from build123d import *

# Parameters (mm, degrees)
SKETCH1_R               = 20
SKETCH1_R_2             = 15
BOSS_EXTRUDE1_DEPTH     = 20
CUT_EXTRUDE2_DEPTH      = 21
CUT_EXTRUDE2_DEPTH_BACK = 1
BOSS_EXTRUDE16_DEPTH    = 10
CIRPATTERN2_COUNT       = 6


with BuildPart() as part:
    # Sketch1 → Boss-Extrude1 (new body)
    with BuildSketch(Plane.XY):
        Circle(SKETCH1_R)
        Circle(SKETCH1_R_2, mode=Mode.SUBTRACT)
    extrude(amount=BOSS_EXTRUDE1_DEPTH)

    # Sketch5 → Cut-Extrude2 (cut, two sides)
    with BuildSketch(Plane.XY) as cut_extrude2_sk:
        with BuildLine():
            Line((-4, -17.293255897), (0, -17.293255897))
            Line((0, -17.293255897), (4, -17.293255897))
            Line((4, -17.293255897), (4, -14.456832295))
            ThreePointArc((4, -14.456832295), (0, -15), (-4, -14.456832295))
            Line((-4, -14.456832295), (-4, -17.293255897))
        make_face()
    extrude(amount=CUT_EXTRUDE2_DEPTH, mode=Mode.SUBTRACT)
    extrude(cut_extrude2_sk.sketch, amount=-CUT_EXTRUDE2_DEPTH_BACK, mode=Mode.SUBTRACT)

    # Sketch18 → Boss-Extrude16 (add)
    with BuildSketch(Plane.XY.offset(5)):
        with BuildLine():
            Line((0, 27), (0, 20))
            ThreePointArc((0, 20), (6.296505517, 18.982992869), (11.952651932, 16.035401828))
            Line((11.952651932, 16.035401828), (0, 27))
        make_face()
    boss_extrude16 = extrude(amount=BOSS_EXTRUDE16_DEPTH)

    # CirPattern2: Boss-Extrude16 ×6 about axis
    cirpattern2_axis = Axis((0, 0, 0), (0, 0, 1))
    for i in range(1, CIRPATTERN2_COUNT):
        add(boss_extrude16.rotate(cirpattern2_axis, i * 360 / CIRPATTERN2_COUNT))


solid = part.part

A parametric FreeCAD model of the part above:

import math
import FreeCAD as App
import Part
import Sketcher

V = App.Vector

doc = App.newDocument("Part")
body = doc.addObject("PartDesign::Body", "Body")

sketch1 = doc.addObject("Sketcher::SketchObject", "Sketch")
body.addObject(sketch1)
sketch1.AttachmentSupport = (doc.XY_Plane, [""])
sketch1.MapMode = "FlatFace"
sketch1.addGeometry([
    Part.Circle(V(0, 0, 0), V(0, 0, 1), 20),
    Part.Circle(V(0, 0, 0), V(0, 0, 1), 15),
], False)
sketch1.addConstraint([
    Sketcher.Constraint("Coincident", 0, 3, -1, 1),
    Sketcher.Constraint("Coincident", 1, 3, -1, 1),
    Sketcher.Constraint("Diameter", 0, 40.0),
    Sketcher.Constraint("Diameter", 1, 30.0),
])
pad1 = doc.addObject("PartDesign::Pad", "Pad")
body.addObject(pad1)
pad1.Profile = sketch1
pad1.Length = 20

sketch2 = doc.addObject("Sketcher::SketchObject", "Sketch001")
body.addObject(sketch2)
sketch2.AttachmentSupport = (doc.XY_Plane, [""])
sketch2.MapMode = "FlatFace"
sketch2.addGeometry([
    Part.LineSegment(V(-4, -17.3, 0), V(4, -17.3, 0)),
    Part.LineSegment(V(4, -17.3, 0), V(4, -14.5, 0)),
    Part.ArcOfCircle(Part.Circle(V(0, 0, 0), V(0, 0, 1), 15), math.radians(-105), math.radians(-75)),
    Part.LineSegment(V(-4, -14.5, 0), V(-4, -17.3, 0)),
], False)
sketch2.addConstraint([
    Sketcher.Constraint("Coincident", 0, 2, 1, 1),
    Sketcher.Constraint("Coincident", 1, 2, 2, 2),
    Sketcher.Constraint("Coincident", 2, 1, 3, 1),
    Sketcher.Constraint("Coincident", 3, 2, 0, 1),
    Sketcher.Constraint("Horizontal", 0),
    Sketcher.Constraint("Vertical", 1),
    Sketcher.Constraint("Vertical", 3),
    Sketcher.Constraint("Coincident", 2, 3, -1, 1),
    Sketcher.Constraint("Horizontal", 1, 2, 2, 1),
    Sketcher.Constraint("Radius", 2, 15.0),
    Sketcher.Constraint("DistanceX", 0, 1, 0, 2, 8.0),
    Sketcher.Constraint("DistanceY", 1, 1, 1, 2, 2.836424),
])
pocket1 = doc.addObject("PartDesign::Pocket", "Pocket")
body.addObject(pocket1)
pocket1.Profile = sketch2
pocket1.Type = "ThroughAll"
pocket1.Midplane = True

sketch3 = doc.addObject("Sketcher::SketchObject", "Sketch002")
body.addObject(sketch3)
sketch3.AttachmentSupport = (doc.XY_Plane, [""])
sketch3.MapMode = "FlatFace"
sketch3.AttachmentOffset = App.Placement(V(0, 0, 5), App.Rotation())
sketch3.addGeometry([
    Part.LineSegment(V(0, 27, 0), V(0, 20, 0)),
    Part.ArcOfCircle(Part.Circle(V(0, 0, 0), V(0, 0, 1), 20), math.radians(53), math.radians(90)),
    Part.LineSegment(V(12, 16, 0), V(0, 27, 0)),
], False)
sketch3.addConstraint([
    Sketcher.Constraint("Coincident", 0, 2, 1, 2),
    Sketcher.Constraint("Coincident", 1, 1, 2, 1),
    Sketcher.Constraint("Coincident", 2, 2, 0, 1),
    Sketcher.Constraint("Vertical", 0),
    Sketcher.Constraint("Coincident", 1, 3, -1, 1),
    Sketcher.Constraint("PointOnObject", 0, 2, -2),
    Sketcher.Constraint("Radius", 1, 20.0),
    Sketcher.Constraint("DistanceY", 0, 2, 0, 1, 7.0),
    Sketcher.Constraint("DistanceY", -1, 1, 1, 1, 16.035402),
])
pad2 = doc.addObject("PartDesign::Pad", "Pad001")
body.addObject(pad2)
pad2.Profile = sketch3
pad2.Length = 10
doc.recompute()

polarpattern = doc.addObject("PartDesign::PolarPattern", "PolarPattern")
body.addObject(polarpattern)
polarpattern.Originals = [pad2]
polarpattern.Axis = (doc.Z_Axis, [""])
polarpattern.Angle = 360
polarpattern.Occurrences = 6
body.Tip = polarpattern

doc.recompute()
